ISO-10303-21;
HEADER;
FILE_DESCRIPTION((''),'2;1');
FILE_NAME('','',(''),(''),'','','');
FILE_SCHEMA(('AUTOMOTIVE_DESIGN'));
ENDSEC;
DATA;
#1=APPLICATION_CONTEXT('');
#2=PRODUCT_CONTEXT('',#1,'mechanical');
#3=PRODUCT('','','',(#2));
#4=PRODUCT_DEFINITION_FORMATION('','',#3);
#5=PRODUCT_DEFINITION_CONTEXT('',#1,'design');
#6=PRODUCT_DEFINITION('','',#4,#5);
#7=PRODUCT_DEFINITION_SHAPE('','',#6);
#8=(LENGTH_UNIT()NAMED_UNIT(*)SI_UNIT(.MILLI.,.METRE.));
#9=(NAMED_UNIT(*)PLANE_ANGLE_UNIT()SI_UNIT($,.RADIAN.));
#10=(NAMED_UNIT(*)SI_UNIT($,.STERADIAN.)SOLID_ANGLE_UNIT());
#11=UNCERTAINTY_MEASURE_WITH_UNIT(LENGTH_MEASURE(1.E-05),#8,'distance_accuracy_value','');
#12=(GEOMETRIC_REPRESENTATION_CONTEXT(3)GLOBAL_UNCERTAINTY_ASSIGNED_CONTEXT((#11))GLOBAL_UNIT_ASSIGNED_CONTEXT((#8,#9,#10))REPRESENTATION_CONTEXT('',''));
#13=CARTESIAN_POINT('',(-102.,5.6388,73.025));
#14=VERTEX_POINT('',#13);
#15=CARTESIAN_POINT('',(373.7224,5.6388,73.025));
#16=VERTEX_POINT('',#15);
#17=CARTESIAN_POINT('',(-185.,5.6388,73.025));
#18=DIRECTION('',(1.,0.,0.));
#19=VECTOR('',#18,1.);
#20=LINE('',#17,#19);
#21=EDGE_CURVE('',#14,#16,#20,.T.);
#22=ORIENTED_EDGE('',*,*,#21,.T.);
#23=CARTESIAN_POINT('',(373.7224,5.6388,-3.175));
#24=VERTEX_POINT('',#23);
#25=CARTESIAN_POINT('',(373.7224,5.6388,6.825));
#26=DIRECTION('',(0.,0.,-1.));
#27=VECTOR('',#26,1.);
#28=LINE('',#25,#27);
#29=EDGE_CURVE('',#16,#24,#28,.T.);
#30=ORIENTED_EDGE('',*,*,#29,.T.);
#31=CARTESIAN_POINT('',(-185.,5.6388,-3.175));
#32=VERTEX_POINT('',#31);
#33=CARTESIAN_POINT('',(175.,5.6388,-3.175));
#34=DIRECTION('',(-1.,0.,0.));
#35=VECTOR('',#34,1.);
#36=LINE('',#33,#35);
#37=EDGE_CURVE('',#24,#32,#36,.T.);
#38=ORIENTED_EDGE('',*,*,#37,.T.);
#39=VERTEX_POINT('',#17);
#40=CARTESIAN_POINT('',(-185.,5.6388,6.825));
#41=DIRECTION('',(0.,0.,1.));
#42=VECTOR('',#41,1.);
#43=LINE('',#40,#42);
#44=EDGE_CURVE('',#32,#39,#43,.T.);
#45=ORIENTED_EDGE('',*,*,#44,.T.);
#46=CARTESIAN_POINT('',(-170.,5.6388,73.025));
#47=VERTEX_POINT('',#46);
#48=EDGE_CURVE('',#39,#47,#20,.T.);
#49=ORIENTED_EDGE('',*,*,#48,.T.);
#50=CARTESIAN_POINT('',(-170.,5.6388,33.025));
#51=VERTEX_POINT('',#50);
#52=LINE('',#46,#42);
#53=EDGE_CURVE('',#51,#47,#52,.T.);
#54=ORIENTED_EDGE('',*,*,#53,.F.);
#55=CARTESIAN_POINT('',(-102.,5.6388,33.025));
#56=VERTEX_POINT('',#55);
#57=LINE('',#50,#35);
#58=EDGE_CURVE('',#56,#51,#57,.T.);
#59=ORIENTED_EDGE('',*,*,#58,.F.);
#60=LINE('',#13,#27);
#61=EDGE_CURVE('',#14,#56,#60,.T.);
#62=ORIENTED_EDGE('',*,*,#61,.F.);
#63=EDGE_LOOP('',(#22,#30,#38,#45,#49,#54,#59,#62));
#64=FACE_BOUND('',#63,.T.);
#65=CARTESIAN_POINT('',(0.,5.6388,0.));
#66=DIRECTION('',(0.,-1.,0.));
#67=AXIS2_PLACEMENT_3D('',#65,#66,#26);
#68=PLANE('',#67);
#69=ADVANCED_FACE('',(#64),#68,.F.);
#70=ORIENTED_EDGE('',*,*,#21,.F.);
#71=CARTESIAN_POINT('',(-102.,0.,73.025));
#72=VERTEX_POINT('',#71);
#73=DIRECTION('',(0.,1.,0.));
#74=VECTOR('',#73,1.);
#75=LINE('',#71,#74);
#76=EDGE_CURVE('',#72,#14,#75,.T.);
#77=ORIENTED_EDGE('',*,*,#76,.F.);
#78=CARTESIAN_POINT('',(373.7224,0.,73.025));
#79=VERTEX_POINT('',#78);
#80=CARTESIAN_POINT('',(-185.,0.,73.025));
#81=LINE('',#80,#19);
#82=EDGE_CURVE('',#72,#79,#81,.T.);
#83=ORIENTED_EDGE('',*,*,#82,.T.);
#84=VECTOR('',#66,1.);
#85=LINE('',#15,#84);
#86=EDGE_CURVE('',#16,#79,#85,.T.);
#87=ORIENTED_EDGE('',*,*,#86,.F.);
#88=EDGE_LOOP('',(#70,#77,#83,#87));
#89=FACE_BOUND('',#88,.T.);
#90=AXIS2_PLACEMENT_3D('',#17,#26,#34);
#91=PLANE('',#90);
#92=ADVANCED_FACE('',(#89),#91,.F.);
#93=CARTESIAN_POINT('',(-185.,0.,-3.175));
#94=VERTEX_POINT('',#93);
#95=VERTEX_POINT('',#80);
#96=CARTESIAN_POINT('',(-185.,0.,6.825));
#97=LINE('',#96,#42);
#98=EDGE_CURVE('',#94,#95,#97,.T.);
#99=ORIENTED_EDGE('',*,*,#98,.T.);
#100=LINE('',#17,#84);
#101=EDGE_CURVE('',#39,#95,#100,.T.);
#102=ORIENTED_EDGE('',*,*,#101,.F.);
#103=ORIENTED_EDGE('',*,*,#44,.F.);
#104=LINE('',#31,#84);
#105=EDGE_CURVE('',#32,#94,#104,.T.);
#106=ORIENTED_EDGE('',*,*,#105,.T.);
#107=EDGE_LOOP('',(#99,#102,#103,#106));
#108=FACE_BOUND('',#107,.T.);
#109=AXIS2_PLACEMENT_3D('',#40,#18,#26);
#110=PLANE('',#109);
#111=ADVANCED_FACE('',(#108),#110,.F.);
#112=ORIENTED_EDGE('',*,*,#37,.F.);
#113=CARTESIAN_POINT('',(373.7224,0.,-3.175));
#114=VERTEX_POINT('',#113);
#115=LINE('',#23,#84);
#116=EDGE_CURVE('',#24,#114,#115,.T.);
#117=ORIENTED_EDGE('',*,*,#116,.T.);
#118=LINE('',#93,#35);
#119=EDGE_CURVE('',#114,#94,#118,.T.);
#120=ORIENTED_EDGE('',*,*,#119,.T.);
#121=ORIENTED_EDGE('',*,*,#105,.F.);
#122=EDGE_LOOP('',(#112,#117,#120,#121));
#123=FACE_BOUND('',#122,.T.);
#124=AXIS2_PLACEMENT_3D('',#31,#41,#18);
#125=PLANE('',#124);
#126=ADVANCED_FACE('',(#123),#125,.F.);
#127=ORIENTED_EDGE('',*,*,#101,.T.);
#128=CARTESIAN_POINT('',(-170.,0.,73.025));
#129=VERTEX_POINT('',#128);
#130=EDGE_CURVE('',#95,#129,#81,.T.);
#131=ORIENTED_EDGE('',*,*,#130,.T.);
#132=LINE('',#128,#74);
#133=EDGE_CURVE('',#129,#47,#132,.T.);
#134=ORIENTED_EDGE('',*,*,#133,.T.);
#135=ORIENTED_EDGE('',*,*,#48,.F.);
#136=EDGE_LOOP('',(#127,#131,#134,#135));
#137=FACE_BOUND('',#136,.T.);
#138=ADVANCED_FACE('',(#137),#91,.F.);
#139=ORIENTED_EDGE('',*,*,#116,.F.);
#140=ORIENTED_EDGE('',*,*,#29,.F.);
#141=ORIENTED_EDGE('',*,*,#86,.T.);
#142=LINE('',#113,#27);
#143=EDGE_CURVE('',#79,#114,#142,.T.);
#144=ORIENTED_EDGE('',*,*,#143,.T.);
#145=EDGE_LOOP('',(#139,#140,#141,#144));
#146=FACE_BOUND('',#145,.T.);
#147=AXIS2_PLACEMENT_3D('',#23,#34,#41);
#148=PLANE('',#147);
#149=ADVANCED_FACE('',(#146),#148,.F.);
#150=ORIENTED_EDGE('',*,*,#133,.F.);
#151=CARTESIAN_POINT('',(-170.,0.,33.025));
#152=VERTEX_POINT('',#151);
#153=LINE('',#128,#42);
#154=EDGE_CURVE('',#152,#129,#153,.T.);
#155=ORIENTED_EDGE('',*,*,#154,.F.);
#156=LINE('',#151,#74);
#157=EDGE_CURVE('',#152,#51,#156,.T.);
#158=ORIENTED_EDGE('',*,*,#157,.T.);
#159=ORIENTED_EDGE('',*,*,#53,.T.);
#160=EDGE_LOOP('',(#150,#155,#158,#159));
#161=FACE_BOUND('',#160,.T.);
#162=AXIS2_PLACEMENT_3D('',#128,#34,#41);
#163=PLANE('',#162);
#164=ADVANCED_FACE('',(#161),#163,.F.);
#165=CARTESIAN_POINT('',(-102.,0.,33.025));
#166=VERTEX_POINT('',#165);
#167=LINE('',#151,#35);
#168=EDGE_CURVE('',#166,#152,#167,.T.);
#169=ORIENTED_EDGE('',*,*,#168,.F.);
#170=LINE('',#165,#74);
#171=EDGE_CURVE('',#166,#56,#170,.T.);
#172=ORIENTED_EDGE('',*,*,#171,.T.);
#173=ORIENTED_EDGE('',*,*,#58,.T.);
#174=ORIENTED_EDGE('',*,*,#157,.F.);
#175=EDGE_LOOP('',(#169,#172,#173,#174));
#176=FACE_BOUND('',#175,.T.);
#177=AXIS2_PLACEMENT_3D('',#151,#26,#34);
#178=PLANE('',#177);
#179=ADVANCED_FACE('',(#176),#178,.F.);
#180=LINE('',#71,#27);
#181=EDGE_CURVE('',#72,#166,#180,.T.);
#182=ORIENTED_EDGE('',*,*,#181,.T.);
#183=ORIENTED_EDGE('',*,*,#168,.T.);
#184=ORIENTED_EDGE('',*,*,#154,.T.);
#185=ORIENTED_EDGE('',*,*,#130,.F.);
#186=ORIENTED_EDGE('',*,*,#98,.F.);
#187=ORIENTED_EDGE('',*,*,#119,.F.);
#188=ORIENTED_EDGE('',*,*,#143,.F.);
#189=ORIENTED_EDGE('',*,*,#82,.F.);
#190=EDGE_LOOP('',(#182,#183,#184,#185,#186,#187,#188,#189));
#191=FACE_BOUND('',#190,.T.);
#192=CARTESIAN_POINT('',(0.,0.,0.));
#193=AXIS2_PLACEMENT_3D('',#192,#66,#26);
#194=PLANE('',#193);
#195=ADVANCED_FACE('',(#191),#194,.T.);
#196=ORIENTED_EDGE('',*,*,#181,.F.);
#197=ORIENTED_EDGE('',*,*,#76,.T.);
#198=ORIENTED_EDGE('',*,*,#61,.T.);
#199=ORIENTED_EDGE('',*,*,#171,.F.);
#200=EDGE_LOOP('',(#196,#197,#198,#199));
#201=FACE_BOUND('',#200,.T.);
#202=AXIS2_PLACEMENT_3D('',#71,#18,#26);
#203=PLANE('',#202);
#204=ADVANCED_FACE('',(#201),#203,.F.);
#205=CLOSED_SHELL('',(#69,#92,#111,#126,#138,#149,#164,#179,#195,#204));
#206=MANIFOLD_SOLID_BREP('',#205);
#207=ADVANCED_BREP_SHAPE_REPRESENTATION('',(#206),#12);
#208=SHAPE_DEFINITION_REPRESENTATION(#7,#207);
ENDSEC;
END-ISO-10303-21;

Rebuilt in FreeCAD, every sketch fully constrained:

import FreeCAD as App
import Part
import Sketcher

V = App.Vector

doc = App.newDocument("Part")
body = doc.addObject("PartDesign::Body", "Body")

sketch1 = doc.addObject("Sketcher::SketchObject", "Sketch")
body.addObject(sketch1)
sketch1.AttachmentSupport = (doc.XZ_Plane, [""])
sketch1.MapMode = "FlatFace"
sketch1.addGeometry([
    Part.LineSegment(V(-185, 73, 0), V(374, 73, 0)),
    Part.LineSegment(V(374, 73, 0), V(374, -3, 0)),
    Part.LineSegment(V(374, -3, 0), V(-185, -3, 0)),
    Part.LineSegment(V(-185, -3, 0), V(-185, 73, 0)),
], False)
sketch1.addConstraint([
    Sketcher.Constraint("Coincident", 0, 2, 1, 1),
    Sketcher.Constraint("Coincident", 1, 2, 2, 1),
    Sketcher.Constraint("Coincident", 2, 2, 3, 1),
    Sketcher.Constraint("Coincident", 3, 2, 0, 1),
    Sketcher.Constraint("Horizontal", 0),
    Sketcher.Constraint("Vertical", 1),
    Sketcher.Constraint("Horizontal", 2),
    Sketcher.Constraint("Vertical", 3),
    Sketcher.Constraint("DistanceY", 1, 2, 1, 1, 76.2),
    Sketcher.Constraint("DistanceX", 2, 2, -1, 1, 185.0),
    Sketcher.Constraint("DistanceX", 0, 1, 0, 2, 558.7224),
    Sketcher.Constraint("DistanceY", -1, 1, 0, 2, 73.025),
])
pad1 = doc.addObject("PartDesign::Pad", "Pad")
body.addObject(pad1)
pad1.Profile = sketch1
pad1.Length = 5.6388
pad1.Reversed = True

sketch2 = doc.addObject("Sketcher::SketchObject", "Sketch001")
body.addObject(sketch2)
sketch2.AttachmentSupport = (doc.XZ_Plane, [""])
sketch2.MapMode = "FlatFace"
sketch2.AttachmentOffset = App.Placement(V(0, 0, -5.6388), App.Rotation())
sketch2.addGeometry([
    Part.LineSegment(V(-170, 33, 0), V(-170, 73, 0)),
    Part.LineSegment(V(-170, 73, 0), V(-102, 73, 0)),
    Part.LineSegment(V(-102, 73, 0), V(-102, 33, 0)),
    Part.LineSegment(V(-102, 33, 0), V(-170, 33, 0)),
], False)
sketch2.addConstraint([
    Sketcher.Constraint("Coincident", 0, 2, 1, 1),
    Sketcher.Constraint("Coincident", 1, 2, 2, 1),
    Sketcher.Constraint("Coincident", 2, 2, 3, 1),
    Sketcher.Constraint("Coincident", 3, 2, 0, 1),
    Sketcher.Constraint("Vertical", 0),
    Sketcher.Constraint("Horizontal", 1),
    Sketcher.Constraint("Vertical", 2),
    Sketcher.Constraint("Horizontal", 3),
    Sketcher.Constraint("DistanceX", 1, 1, 1, 2, 68.0),
    Sketcher.Constraint("DistanceY", 0, 1, 0, 2, 40.0),
    Sketcher.Constraint("DistanceX", 0, 2, -1, 1, 170.0),
    Sketcher.Constraint("DistanceY", -1, 1, 0, 2, 73.025),
])
pocket1 = doc.addObject("PartDesign::Pocket", "Pocket")
body.addObject(pocket1)
pocket1.Profile = sketch2
pocket1.Type = "ThroughAll"
pocket1.Reversed = True

doc.recompute()
